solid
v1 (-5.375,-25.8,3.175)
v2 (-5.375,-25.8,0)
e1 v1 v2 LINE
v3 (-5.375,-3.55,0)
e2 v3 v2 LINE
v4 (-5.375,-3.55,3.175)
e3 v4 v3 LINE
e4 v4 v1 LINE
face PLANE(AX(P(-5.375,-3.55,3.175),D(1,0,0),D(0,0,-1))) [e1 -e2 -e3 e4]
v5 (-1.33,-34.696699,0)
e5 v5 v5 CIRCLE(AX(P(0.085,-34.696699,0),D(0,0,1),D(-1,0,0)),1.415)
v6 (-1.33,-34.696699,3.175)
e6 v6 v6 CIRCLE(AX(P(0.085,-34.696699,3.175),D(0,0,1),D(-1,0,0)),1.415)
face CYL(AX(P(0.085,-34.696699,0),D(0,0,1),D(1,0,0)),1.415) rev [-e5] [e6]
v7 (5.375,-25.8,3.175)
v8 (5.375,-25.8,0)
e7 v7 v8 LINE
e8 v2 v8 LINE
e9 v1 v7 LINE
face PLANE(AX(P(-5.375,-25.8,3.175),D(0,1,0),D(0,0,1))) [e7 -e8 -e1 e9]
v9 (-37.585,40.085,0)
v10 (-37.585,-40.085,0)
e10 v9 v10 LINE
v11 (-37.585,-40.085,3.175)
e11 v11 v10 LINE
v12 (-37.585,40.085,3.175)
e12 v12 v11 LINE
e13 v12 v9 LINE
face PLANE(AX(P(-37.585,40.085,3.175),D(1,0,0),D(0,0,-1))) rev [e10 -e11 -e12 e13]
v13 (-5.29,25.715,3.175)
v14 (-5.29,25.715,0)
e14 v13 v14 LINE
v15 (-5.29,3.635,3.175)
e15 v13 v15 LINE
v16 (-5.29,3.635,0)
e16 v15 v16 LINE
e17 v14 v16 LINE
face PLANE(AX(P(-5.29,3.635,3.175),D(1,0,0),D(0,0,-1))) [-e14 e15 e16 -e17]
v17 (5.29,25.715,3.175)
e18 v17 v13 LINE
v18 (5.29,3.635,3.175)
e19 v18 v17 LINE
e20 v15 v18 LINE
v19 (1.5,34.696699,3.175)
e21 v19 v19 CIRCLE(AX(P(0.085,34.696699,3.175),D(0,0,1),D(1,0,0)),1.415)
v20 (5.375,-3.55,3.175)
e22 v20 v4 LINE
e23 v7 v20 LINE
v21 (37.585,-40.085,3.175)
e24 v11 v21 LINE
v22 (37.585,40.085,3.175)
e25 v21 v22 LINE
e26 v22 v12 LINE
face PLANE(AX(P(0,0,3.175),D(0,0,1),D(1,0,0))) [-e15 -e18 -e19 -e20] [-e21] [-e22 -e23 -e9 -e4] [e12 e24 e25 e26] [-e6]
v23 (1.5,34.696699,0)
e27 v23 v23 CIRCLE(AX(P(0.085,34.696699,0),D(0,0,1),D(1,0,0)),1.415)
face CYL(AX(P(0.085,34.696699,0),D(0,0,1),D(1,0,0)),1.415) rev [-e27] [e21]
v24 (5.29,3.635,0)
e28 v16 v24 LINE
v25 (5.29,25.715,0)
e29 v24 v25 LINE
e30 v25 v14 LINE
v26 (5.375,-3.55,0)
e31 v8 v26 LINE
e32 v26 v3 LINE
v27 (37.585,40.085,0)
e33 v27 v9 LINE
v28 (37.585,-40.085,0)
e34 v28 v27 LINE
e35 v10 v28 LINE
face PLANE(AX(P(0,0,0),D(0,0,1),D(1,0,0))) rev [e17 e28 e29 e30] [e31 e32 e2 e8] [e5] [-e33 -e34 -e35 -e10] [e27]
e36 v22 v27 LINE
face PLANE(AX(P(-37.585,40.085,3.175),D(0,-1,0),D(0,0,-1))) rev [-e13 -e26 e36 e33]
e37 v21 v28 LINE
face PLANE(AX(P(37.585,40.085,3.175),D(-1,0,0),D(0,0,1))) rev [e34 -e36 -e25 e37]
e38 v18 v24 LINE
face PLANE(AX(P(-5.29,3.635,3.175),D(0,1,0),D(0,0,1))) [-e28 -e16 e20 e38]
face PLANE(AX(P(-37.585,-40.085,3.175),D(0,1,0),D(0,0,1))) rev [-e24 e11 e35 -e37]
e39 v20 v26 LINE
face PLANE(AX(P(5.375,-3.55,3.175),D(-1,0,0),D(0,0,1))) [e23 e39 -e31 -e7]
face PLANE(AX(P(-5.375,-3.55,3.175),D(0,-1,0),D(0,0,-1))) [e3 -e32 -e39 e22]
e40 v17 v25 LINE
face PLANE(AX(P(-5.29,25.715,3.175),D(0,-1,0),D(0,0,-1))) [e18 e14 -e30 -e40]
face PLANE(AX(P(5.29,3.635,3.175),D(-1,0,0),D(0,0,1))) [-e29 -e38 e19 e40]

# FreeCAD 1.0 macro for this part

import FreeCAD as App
import Part
import Sketcher

V = App.Vector
Q = App.Units.Quantity

doc = App.newDocument("Part")
body = doc.addObject("PartDesign::Body", "Body")

# Sketch on XY plane
sketch1 = body.newObject("Sketcher::SketchObject", "Sketch")
sketch1.AttachmentSupport = (doc.getObject("XY_Plane"), [""])
sketch1.MapMode = "FlatFace"
sketch1.addGeometry(Part.LineSegment(V(-38, 40, 0), V(-38, -40, 0)), False)
sketch1.addGeometry(Part.LineSegment(V(-38, -40, 0), V(38, -40, 0)), False)
sketch1.addGeometry(Part.LineSegment(V(38, -40, 0), V(38, 40, 0)), False)
sketch1.addGeometry(Part.LineSegment(V(38, 40, 0), V(-38, 40, 0)), False)
sketch1.addGeometry(Part.LineSegment(V(5, -26, 0), V(-5, -26, 0)), False)
sketch1.addGeometry(Part.LineSegment(V(-5, -26, 0), V(-5, -4, 0)), False)
sketch1.addGeometry(Part.LineSegment(V(-5, -4, 0), V(5, -4, 0)), False)
sketch1.addGeometry(Part.LineSegment(V(5, -4, 0), V(5, -26, 0)), False)
sketch1.addGeometry(Part.LineSegment(V(5, 4, 0), V(-5, 4, 0)), False)
sketch1.addGeometry(Part.LineSegment(V(-5, 4, 0), V(-5, 26, 0)), False)
sketch1.addGeometry(Part.LineSegment(V(-5, 26, 0), V(5, 26, 0)), False)
sketch1.addGeometry(Part.LineSegment(V(5, 26, 0), V(5, 4, 0)), False)
sketch1.addConstraint(Sketcher.Constraint("Coincident", 0, 2, 1, 1))
sketch1.addConstraint(Sketcher.Constraint("Coincident", 1, 2, 2, 1))
sketch1.addConstraint(Sketcher.Constraint("Coincident", 2, 2, 3, 1))
sketch1.addConstraint(Sketcher.Constraint("Coincident", 3, 2, 0, 1))
sketch1.addConstraint(Sketcher.Constraint("Coincident", 4, 2, 5, 1))
sketch1.addConstraint(Sketcher.Constraint("Coincident", 5, 2, 6, 1))
sketch1.addConstraint(Sketcher.Constraint("Coincident", 6, 2, 7, 1))
sketch1.addConstraint(Sketcher.Constraint("Coincident", 7, 2, 4, 1))
sketch1.addConstraint(Sketcher.Constraint("Coincident", 8, 2, 9, 1))
sketch1.addConstraint(Sketcher.Constraint("Coincident", 9, 2, 10, 1))
sketch1.addConstraint(Sketcher.Constraint("Coincident", 10, 2, 11, 1))
sketch1.addConstraint(Sketcher.Constraint("Coincident", 11, 2, 8, 1))
sketch1.addConstraint(Sketcher.Constraint("Vertical", 0))
sketch1.addConstraint(Sketcher.Constraint("Horizontal", 1))
sketch1.addConstraint(Sketcher.Constraint("Vertical", 2))
sketch1.addConstraint(Sketcher.Constraint("Horizontal", 3))
sketch1.addConstraint(Sketcher.Constraint("Horizontal", 4))
sketch1.addConstraint(Sketcher.Constraint("Vertical", 5))
sketch1.addConstraint(Sketcher.Constraint("Horizontal", 6))
sketch1.addConstraint(Sketcher.Constraint("Vertical", 7))
sketch1.addConstraint(Sketcher.Constraint("Horizontal", 8))
sketch1.addConstraint(Sketcher.Constraint("Vertical", 9))
sketch1.addConstraint(Sketcher.Constraint("Horizontal", 10))
sketch1.addConstraint(Sketcher.Constraint("Vertical", 11))
sketch1.addConstraint(Sketcher.Constraint("Symmetric", 0, 2, 2, 2, -1, 1))
sketch1.addConstraint(Sketcher.Constraint("DistanceX", 1, 1, 1, 2, 75.17))
sketch1.addConstraint(Sketcher.Constraint("DistanceX", 4, 2, 4, 1, 10.75))
sketch1.addConstraint(Sketcher.Constraint("DistanceX", 8, 2, 8, 1, 10.58))
sketch1.addConstraint(Sketcher.Constraint("DistanceY", 0, 2, 0, 1, 80.17))
sketch1.addConstraint(Sketcher.Constraint("DistanceY", 5, 1, 5, 2, 22.25))
sketch1.addConstraint(Sketcher.Constraint("DistanceY", 9, 1, 9, 2, 22.08))
sketch1.addConstraint(Sketcher.Constraint("DistanceX", 4, 2, -1, 1, 5.375))
sketch1.addConstraint(Sketcher.Constraint("DistanceY", 4, 2, -1, 1, 25.8))
sketch1.addConstraint(Sketcher.Constraint("DistanceX", 8, 2, -1, 1, 5.29))
sketch1.addConstraint(Sketcher.Constraint("DistanceY", -1, 1, 8, 2, 3.635))
pad1 = body.newObject("PartDesign::Pad", "Pad")
pad1.Profile = sketch1
pad1.Length = Q("0.125 in")

# Sketch on XY plane
sketch2 = body.newObject("Sketcher::SketchObject", "Sketch001")
sketch2.AttachmentSupport = (doc.getObject("XY_Plane"), [""])
sketch2.MapMode = "FlatFace"
sketch2.AttachmentOffset = App.Placement(V(0, 0, 0.125 * 25.4), App.Rotation())
sketch2.addGeometry(Part.Circle(V(0.1, 34.7, 0), V(0, 0, 1), 1.4), False)
sketch2.addGeometry(Part.Circle(V(0.1, -34.7, 0), V(0, 0, 1), 1.4), False)
sketch2.addConstraint(Sketcher.Constraint("Equal", 0, 1))
sketch2.addConstraint(Sketcher.Constraint("Symmetric", 0, 3, 1, 3, -1))
sketch2.addConstraint(Sketcher.Constraint("Diameter", 0, 2.83))
sketch2.addConstraint(Sketcher.Constraint("DistanceX", -1, 1, 0, 3, 0.085))
sketch2.addConstraint(Sketcher.Constraint("DistanceY", -1, 1, 0, 3, 34.696699))
pocket1 = body.newObject("PartDesign::Pocket", "Pocket")
pocket1.Profile = sketch2
pocket1.Type = "ThroughAll"

doc.recompute()
